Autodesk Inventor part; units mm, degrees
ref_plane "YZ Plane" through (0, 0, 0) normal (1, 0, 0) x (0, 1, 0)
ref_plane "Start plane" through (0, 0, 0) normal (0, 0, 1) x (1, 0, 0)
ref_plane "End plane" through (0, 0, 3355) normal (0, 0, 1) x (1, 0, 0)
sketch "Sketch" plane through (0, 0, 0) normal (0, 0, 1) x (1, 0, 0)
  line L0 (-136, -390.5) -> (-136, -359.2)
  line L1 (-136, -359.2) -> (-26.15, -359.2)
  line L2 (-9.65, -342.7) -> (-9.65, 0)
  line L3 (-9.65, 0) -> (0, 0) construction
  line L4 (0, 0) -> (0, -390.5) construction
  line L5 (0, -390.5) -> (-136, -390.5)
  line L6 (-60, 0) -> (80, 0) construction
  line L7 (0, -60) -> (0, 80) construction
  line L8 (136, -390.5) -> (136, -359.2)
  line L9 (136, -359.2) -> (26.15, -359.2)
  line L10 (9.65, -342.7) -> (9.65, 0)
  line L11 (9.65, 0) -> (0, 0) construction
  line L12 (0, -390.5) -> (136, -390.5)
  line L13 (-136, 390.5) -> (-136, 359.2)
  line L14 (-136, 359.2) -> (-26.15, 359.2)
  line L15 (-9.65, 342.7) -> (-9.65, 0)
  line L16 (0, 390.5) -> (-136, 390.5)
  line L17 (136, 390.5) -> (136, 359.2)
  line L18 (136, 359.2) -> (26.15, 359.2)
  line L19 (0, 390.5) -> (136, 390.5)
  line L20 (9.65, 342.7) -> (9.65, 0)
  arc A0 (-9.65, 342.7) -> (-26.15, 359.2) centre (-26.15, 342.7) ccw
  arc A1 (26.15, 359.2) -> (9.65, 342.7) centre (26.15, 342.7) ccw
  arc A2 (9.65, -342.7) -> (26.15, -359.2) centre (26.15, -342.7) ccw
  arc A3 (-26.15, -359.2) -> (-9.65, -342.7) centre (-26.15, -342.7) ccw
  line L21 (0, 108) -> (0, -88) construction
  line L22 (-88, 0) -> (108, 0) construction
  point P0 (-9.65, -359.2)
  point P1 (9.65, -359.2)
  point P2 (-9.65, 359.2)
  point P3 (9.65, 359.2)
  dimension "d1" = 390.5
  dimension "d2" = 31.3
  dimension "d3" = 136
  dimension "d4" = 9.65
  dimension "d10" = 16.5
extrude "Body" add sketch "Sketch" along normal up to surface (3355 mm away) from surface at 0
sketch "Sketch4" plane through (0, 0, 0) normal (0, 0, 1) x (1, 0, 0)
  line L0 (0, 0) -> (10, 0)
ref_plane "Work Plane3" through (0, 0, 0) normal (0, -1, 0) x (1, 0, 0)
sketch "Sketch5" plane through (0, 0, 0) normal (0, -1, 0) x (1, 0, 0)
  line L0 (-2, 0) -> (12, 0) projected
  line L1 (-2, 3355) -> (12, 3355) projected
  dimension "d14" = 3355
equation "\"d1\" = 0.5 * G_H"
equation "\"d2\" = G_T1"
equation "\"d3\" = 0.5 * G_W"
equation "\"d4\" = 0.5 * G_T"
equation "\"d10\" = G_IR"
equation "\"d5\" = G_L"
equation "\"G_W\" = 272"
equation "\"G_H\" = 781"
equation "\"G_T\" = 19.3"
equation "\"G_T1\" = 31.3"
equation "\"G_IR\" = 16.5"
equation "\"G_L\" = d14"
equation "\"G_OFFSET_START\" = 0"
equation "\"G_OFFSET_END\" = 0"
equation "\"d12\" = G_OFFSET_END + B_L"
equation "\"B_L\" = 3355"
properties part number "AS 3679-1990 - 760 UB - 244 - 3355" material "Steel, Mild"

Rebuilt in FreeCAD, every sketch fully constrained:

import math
import FreeCAD as App
import Part
import Sketcher
from FreeCAD import Vector

doc = App.newDocument("Part")
body = doc.addObject("PartDesign::Body", "Body")

sketch1 = doc.addObject("Sketcher::SketchObject", "Sketch")
body.addObject(sketch1)
sketch1.AttachmentSupport = (doc.XY_Plane, [""])
sketch1.MapMode = "FlatFace"
sketch1.addGeometry(Part.LineSegment(Vector(-136, -359, 0), Vector(-136, -390, 0)), False)
sketch1.addGeometry(Part.LineSegment(Vector(-136, -390, 0), Vector(136, -390, 0)), False)
sketch1.addGeometry(Part.LineSegment(Vector(136, -390, 0), Vector(136, -359, 0)), False)
sketch1.addGeometry(Part.LineSegment(Vector(136, -359, 0), Vector(26, -359, 0)), False)
sketch1.addGeometry(Part.ArcOfCircle(Part.Circle(Vector(26, -343, 0), Vector(0, 0, 1), 16), math.radians(180), math.radians(270)), False)
sketch1.addGeometry(Part.LineSegment(Vector(10, -343, 0), Vector(10, 343, 0)), False)
sketch1.addGeometry(Part.ArcOfCircle(Part.Circle(Vector(26, 343, 0), Vector(0, 0, 1), 16), math.radians(90), math.radians(180)), False)
sketch1.addGeometry(Part.LineSegment(Vector(26, 359, 0), Vector(136, 359, 0)), False)
sketch1.addGeometry(Part.LineSegment(Vector(136, 359, 0), Vector(136, 390, 0)), False)
sketch1.addGeometry(Part.LineSegment(Vector(136, 390, 0), Vector(-136, 390, 0)), False)
sketch1.addGeometry(Part.LineSegment(Vector(-136, 390, 0), Vector(-136, 359, 0)), False)
sketch1.addGeometry(Part.LineSegment(Vector(-136, 359, 0), Vector(-26, 359, 0)), False)
sketch1.addGeometry(Part.ArcOfCircle(Part.Circle(Vector(-26, 343, 0), Vector(0, 0, 1), 16), math.radians(0), math.radians(90)), False)
sketch1.addGeometry(Part.LineSegment(Vector(-10, 343, 0), Vector(-10, -343, 0)), False)
sketch1.addGeometry(Part.ArcOfCircle(Part.Circle(Vector(-26, -343, 0), Vector(0, 0, 1), 16), math.radians(-90), math.radians(0)), False)
sketch1.addGeometry(Part.LineSegment(Vector(-26, -359, 0), Vector(-136, -359, 0)), False)
sketch1.addConstraint(Sketcher.Constraint("Coincident", 0, 2, 1, 1))
sketch1.addConstraint(Sketcher.Constraint("Coincident", 1, 2, 2, 1))
sketch1.addConstraint(Sketcher.Constraint("Coincident", 2, 2, 3, 1))
sketch1.addConstraint(Sketcher.Constraint("Tangent", 3, 2, 4, 2))
sketch1.addConstraint(Sketcher.Constraint("Tangent", 4, 1, 5, 1))
sketch1.addConstraint(Sketcher.Constraint("Tangent", 5, 2, 6, 2))
sketch1.addConstraint(Sketcher.Constraint("Tangent", 6, 1, 7, 1))
sketch1.addConstraint(Sketcher.Constraint("Coincident", 7, 2, 8, 1))
sketch1.addConstraint(Sketcher.Constraint("Coincident", 8, 2, 9, 1))
sketch1.addConstraint(Sketcher.Constraint("Coincident", 9, 2, 10, 1))
sketch1.addConstraint(Sketcher.Constraint("Coincident", 10, 2, 11, 1))
sketch1.addConstraint(Sketcher.Constraint("Tangent", 11, 2, 12, 2))
sketch1.addConstraint(Sketcher.Constraint("Tangent", 12, 1, 13, 1))
sketch1.addConstraint(Sketcher.Constraint("Tangent", 13, 2, 14, 2))
sketch1.addConstraint(Sketcher.Constraint("Tangent", 14, 1, 15, 1))
sketch1.addConstraint(Sketcher.Constraint("Coincident", 15, 2, 0, 1))
sketch1.addConstraint(Sketcher.Constraint("Vertical", 0))
sketch1.addConstraint(Sketcher.Constraint("Horizontal", 1))
sketch1.addConstraint(Sketcher.Constraint("Vertical", 2))
sketch1.addConstraint(Sketcher.Constraint("Horizontal", 3))
sketch1.addConstraint(Sketcher.Constraint("Vertical", 5))
sketch1.addConstraint(Sketcher.Constraint("Horizontal", 7))
sketch1.addConstraint(Sketcher.Constraint("Vertical", 8))
sketch1.addConstraint(Sketcher.Constraint("Horizontal", 9))
sketch1.addConstraint(Sketcher.Constraint("Vertical", 10))
sketch1.addConstraint(Sketcher.Constraint("Horizontal", 11))
sketch1.addConstraint(Sketcher.Constraint("Vertical", 13))
sketch1.addConstraint(Sketcher.Constraint("Horizontal", 15))
sketch1.addConstraint(Sketcher.Constraint("Equal", 4, 6))
sketch1.addConstraint(Sketcher.Constraint("Equal", 6, 12))
sketch1.addConstraint(Sketcher.Constraint("Equal", 12, 14))
sketch1.addConstraint(Sketcher.Constraint("Symmetric", 4, 3, 12, 3, -1, 1))
sketch1.addConstraint(Sketcher.Constraint("Symmetric", 0, 2, 8, 2, -1, 1))
sketch1.addConstraint(Sketcher.Constraint("Symmetric", 7, 2, 10, 2, -2))
sketch1.addConstraint(Sketcher.Constraint("Symmetric", 2, 2, 15, 2, -2))
sketch1.addConstraint(Sketcher.Constraint("Radius", 4, 16.5))
sketch1.addConstraint(Sketcher.Constraint("DistanceY", 0, 2, 0, 1, 31.3))
sketch1.addConstraint(Sketcher.Constraint("DistanceX", 0, 2, -1, 1, 136.0))
sketch1.addConstraint(Sketcher.Constraint("DistanceY", 0, 2, -1, 1, 390.5))
sketch1.addConstraint(Sketcher.Constraint("DistanceX", -1, 1, 4, 1, 9.65))
pad1 = doc.addObject("PartDesign::Pad", "Pad")
body.addObject(pad1)
pad1.Profile = sketch1
pad1.Length = 3355

doc.recompute()
